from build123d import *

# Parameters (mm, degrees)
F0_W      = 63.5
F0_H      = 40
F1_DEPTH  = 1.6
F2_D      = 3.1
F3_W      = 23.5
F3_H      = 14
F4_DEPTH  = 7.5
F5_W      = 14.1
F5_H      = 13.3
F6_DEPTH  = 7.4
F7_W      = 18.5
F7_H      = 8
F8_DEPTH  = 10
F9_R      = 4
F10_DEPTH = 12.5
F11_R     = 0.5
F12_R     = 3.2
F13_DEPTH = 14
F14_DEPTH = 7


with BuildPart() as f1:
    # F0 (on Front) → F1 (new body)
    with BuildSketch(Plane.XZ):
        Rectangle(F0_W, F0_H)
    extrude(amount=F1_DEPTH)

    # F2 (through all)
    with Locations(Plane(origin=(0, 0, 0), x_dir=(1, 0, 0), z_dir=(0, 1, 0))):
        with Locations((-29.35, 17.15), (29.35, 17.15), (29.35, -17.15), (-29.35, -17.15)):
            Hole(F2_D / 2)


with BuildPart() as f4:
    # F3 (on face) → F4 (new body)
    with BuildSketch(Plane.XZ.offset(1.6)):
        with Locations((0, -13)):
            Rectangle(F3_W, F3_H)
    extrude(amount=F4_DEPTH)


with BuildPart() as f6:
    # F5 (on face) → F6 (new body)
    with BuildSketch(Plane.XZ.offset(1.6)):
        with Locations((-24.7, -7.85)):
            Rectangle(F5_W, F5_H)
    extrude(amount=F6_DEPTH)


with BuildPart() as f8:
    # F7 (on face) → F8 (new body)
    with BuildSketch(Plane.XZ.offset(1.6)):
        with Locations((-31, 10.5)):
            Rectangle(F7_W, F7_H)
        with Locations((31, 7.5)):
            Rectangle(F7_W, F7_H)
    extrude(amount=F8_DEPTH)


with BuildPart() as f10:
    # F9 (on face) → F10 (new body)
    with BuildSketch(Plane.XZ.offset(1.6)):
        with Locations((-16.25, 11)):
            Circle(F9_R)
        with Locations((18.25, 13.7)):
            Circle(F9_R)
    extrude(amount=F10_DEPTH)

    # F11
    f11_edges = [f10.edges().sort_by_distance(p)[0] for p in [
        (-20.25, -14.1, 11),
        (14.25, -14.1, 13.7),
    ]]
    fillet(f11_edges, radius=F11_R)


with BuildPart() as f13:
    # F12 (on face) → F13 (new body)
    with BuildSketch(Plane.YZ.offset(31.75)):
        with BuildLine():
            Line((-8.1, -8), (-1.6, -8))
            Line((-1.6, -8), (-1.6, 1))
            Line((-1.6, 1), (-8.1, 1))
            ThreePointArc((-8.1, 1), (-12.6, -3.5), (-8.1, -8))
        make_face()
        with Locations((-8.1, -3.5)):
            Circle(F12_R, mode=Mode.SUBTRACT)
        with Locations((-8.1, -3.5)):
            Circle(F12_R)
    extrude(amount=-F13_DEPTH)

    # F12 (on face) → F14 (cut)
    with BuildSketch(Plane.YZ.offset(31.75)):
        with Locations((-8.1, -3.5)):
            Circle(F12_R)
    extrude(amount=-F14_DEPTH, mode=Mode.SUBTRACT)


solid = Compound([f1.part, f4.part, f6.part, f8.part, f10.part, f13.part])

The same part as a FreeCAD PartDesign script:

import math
import FreeCAD as App
import Part
import Sketcher
from FreeCAD import Vector


def edges_at(feature, points):
    """Names of the edges that pass closest to the given points."""
    edges = feature.Shape.Edges
    near = lambda p: min(range(len(edges)), key=lambda i: edges[i].distToShape(Part.Vertex(*p))[0])
    return sorted({f"Edge{near(p) + 1}" for p in points})


def add_polygon(sketch, points):
    """Adds a closed chain of lines whose ends are joined by coincident constraints."""
    first, n = sketch.GeometryCount, len(points)
    for a, b in zip(points, points[1:] + points[:1]):
        sketch.addGeometry(Part.LineSegment(App.Vector(*a, 0), App.Vector(*b, 0)), False)
    for i in range(n):
        sketch.addConstraint(Sketcher.Constraint("Coincident", first + i, 2, first + (i + 1) % n, 1))

doc = App.newDocument("Part")
body = doc.addObject("PartDesign::Body", "Body")

# Sketch on XZ plane
sketch1 = doc.addObject("Sketcher::SketchObject", "Sketch")
body.addObject(sketch1)
sketch1.AttachmentSupport = (doc.XZ_Plane, [""])
sketch1.MapMode = "FlatFace"
add_polygon(sketch1, [(-32, 20), (-32, -20), (32, -20), (32, 20)])  # lines 0-3
sketch1.addConstraint([
    Sketcher.Constraint("Vertical", 0),
    Sketcher.Constraint("Horizontal", 1),
    Sketcher.Constraint("Vertical", 2),
    Sketcher.Constraint("Horizontal", 3),
    Sketcher.Constraint("Symmetric", 0, 2, 2, 2, -1, 1),
    Sketcher.Constraint("DistanceY", 0, 2, 0, 1, 40.0),
    Sketcher.Constraint("DistanceX", 1, 1, 1, 2, 63.5),
])
pad1 = doc.addObject("PartDesign::Pad", "Pad")
body.addObject(pad1)
pad1.Profile = sketch1
pad1.Length = 1.6

# Sketch on XZ plane
sketch2 = doc.addObject("Sketcher::SketchObject", "Sketch001")
body.addObject(sketch2)
sketch2.AttachmentSupport = (doc.XZ_Plane, [""])
sketch2.MapMode = "FlatFace"
sketch2.addGeometry([
    Part.Circle(Vector(-29.4, -17.1, 0), Vector(0, 0, 1), 1.6),
    Part.Circle(Vector(29.4, -17.1, 0), Vector(0, 0, 1), 1.6),
    Part.Circle(Vector(29.4, 17.1, 0), Vector(0, 0, 1), 1.6),
    Part.Circle(Vector(-29.4, 17.1, 0), Vector(0, 0, 1), 1.6),
], False)
sketch2.addConstraint([
    Sketcher.Constraint("Equal", 0, 1),
    Sketcher.Constraint("Equal", 1, 2),
    Sketcher.Constraint("Equal", 2, 3),
    Sketcher.Constraint("Symmetric", 0, 3, 2, 3, -1, 1),
    Sketcher.Constraint("Symmetric", 1, 3, 3, 3, -1, 1),
    Sketcher.Constraint("Symmetric", 0, 3, 1, 3, -2),
    Sketcher.Constraint("Diameter", 0, 3.1),
    Sketcher.Constraint("DistanceX", 0, 3, 1, 3, 58.7),
    Sketcher.Constraint("DistanceY", 1, 3, 2, 3, 34.3),
])
doc.recompute()
hole = doc.addObject("PartDesign::Hole", "Hole")
body.addObject(hole)
hole.Profile = sketch2
hole.ThreadType = "None"
hole.Diameter = 3.1
hole.DepthType = "ThroughAll"
hole.Reversed = True
body2 = doc.addObject("PartDesign::Body", "Body001")

# Sketch on XZ plane
sketch3 = doc.addObject("Sketcher::SketchObject", "Sketch002")
body2.addObject(sketch3)
sketch3.AttachmentSupport = (doc.getObject("XZ_Plane001"), [""])
sketch3.MapMode = "FlatFace"
sketch3.AttachmentOffset = App.Placement(Vector(0, 0, 1.6), App.Rotation())
add_polygon(sketch3, [(-12, -6), (-12, -20), (12, -20), (12, -6)])  # lines 0-3
sketch3.addConstraint([
    Sketcher.Constraint("Vertical", 0),
    Sketcher.Constraint("Horizontal", 1),
    Sketcher.Constraint("Vertical", 2),
    Sketcher.Constraint("Horizontal", 3),
    Sketcher.Constraint("DistanceY", 0, 2, 0, 1, 14.0),
    Sketcher.Constraint("DistanceX", 1, 1, 1, 2, 23.5),
    Sketcher.Constraint("DistanceY", 0, 2, -1, 1, 20.0),
    Sketcher.Constraint("DistanceX", 0, 2, -1, 1, 11.75),
])
pad2 = doc.addObject("PartDesign::Pad", "Pad001")
body2.addObject(pad2)
pad2.Profile = sketch3
pad2.Length = 7.5
body3 = doc.addObject("PartDesign::Body", "Body002")

# Sketch on XZ plane
sketch4 = doc.addObject("Sketcher::SketchObject", "Sketch003")
body3.addObject(sketch4)
sketch4.AttachmentSupport = (doc.getObject("XZ_Plane002"), [""])
sketch4.MapMode = "FlatFace"
sketch4.AttachmentOffset = App.Placement(Vector(0, 0, 1.6), App.Rotation())
add_polygon(sketch4, [(-32, -1), (-32, -14), (-18, -14), (-18, -1)])  # lines 0-3
sketch4.addConstraint([
    Sketcher.Constraint("Vertical", 0),
    Sketcher.Constraint("Horizontal", 1),
    Sketcher.Constraint("Vertical", 2),
    Sketcher.Constraint("Horizontal", 3),
    Sketcher.Constraint("DistanceX", 1, 1, 1, 2, 14.1),
    Sketcher.Constraint("DistanceY", 0, 2, 0, 1, 13.3),
    Sketcher.Constraint("DistanceY", 0, 2, -1, 1, 14.5),
    Sketcher.Constraint("DistanceX", 0, 2, -1, 1, 31.75),
])
pad3 = doc.addObject("PartDesign::Pad", "Pad002")
body3.addObject(pad3)
pad3.Profile = sketch4
pad3.Length = 7.4
body4 = doc.addObject("PartDesign::Body", "Body003")
body4.AllowCompound = True

# Sketch on XZ plane
sketch5 = doc.addObject("Sketcher::SketchObject", "Sketch004")
body4.addObject(sketch5)
sketch5.AttachmentSupport = (doc.getObject("XZ_Plane003"), [""])
sketch5.MapMode = "FlatFace"
sketch5.AttachmentOffset = App.Placement(Vector(0, 0, 1.6), App.Rotation())
add_polygon(sketch5, [(-40, 14), (-40, 6), (-22, 6), (-22, 14)])  # lines 0-3
add_polygon(sketch5, [(22, 12), (22, 4), (40, 4), (40, 12)])  # lines 4-7
sketch5.addConstraint([
    Sketcher.Constraint("Vertical", 0),
    Sketcher.Constraint("Horizontal", 1),
    Sketcher.Constraint("Vertical", 2),
    Sketcher.Constraint("Horizontal", 3),
    Sketcher.Constraint("Vertical", 4),
    Sketcher.Constraint("Horizontal", 5),
    Sketcher.Constraint("Vertical", 6),
    Sketcher.Constraint("Horizontal", 7),
    Sketcher.Constraint("Equal", 3, 5),
    Sketcher.Constraint("Equal", 2, 4),
    Sketcher.Constraint("DistanceY", 0, 2, 0, 1, 8.0),
    Sketcher.Constraint("DistanceX", 1, 1, 1, 2, 18.5),
    Sketcher.Constraint("DistanceY", 4, 2, 1, 2, 3.0),
    Sketcher.Constraint("DistanceX", 0, 2, 4, 2, 62.0),
    Sketcher.Constraint("DistanceY", -1, 1, 0, 2, 6.5),
    Sketcher.Constraint("DistanceX", 0, 2, -1, 1, 40.25),
])
pad4 = doc.addObject("PartDesign::Pad", "Pad003")
body4.addObject(pad4)
pad4.Profile = sketch5
pad4.Length = 10
body5 = doc.addObject("PartDesign::Body", "Body004")
body5.AllowCompound = True

# Sketch on XZ plane
sketch6 = doc.addObject("Sketcher::SketchObject", "Sketch005")
body5.addObject(sketch6)
sketch6.AttachmentSupport = (doc.getObject("XZ_Plane004"), [""])
sketch6.MapMode = "FlatFace"
sketch6.AttachmentOffset = App.Placement(Vector(0, 0, 1.6), App.Rotation())
sketch6.addGeometry([
    Part.Circle(Vector(-16.2, 11, 0), Vector(0, 0, 1), 4),
    Part.Circle(Vector(18.2, 13.7, 0), Vector(0, 0, 1), 4),
], False)
sketch6.addConstraint([
    Sketcher.Constraint("Equal", 0, 1),
    Sketcher.Constraint("Diameter", 0, 8.0),
    Sketcher.Constraint("DistanceY", -1, 1, 0, 3, 11.0),
    Sketcher.Constraint("DistanceY", -1, 1, 1, 3, 13.7),
    Sketcher.Constraint("DistanceX", 0, 3, 1, 3, 34.5),
    Sketcher.Constraint("DistanceX", 0, 3, -1, 1, 16.25),
])
pad5 = doc.addObject("PartDesign::Pad", "Pad004")
body5.addObject(pad5)
pad5.Profile = sketch6
pad5.Length = 12.5
doc.recompute()

fillet = doc.addObject("PartDesign::Fillet", "Fillet")
body5.addObject(fillet)
fillet.Base = (pad5, edges_at(pad5, [(-20.25, -14.1, 11), (14.25, -14.1, 13.7)]))
fillet.Radius = 0.5
body6 = doc.addObject("PartDesign::Body", "Body005")

# Sketch on YZ plane
sketch7 = doc.addObject("Sketcher::SketchObject", "Sketch006")
body6.addObject(sketch7)
sketch7.AttachmentSupport = (doc.getObject("YZ_Plane005"), [""])
sketch7.MapMode = "FlatFace"
sketch7.AttachmentOffset = App.Placement(Vector(0, 0, 31.75), App.Rotation())
sketch7.addGeometry([
    Part.LineSegment(Vector(-8.1, -8, 0), Vector(-1.6, -8, 0)),
    Part.LineSegment(Vector(-1.6, -8, 0), Vector(-1.6, 1, 0)),
    Part.LineSegment(Vector(-1.6, 1, 0), Vector(-8.1, 1, 0)),
    Part.ArcOfCircle(Part.Circle(Vector(-8.1, -3.5, 0), Vector(0, 0, 1), 4.5), math.radians(90), math.radians(270)),
], False)
sketch7.addConstraint([
    Sketcher.Constraint("Coincident", 0, 2, 1, 1),
    Sketcher.Constraint("Coincident", 1, 2, 2, 1),
    Sketcher.Constraint("Tangent", 2, 2, 3, 1),
    Sketcher.Constraint("Tangent", 3, 2, 0, 1),
    Sketcher.Constraint("Horizontal", 0),
    Sketcher.Constraint("Vertical", 1),
    Sketcher.Constraint("Horizontal", 2),
    Sketcher.Constraint("Radius", 3, 4.5),
    Sketcher.Constraint("DistanceX", 0, 1, 0, 2, 6.5),
    Sketcher.Constraint("DistanceY", 0, 2, -1, 1, 8.0),
    Sketcher.Constraint("DistanceX", 3, 3, -1, 1, 8.1),
])
pad6 = doc.addObject("PartDesign::Pad", "Pad005")
body6.addObject(pad6)
pad6.Profile = sketch7
pad6.Length = 14
pad6.Reversed = True

# Sketch on YZ plane
sketch8 = doc.addObject("Sketcher::SketchObject", "Sketch007")
body6.addObject(sketch8)
sketch8.AttachmentSupport = (doc.getObject("YZ_Plane005"), [""])
sketch8.MapMode = "FlatFace"
sketch8.AttachmentOffset = App.Placement(Vector(0, 0, 31.75), App.Rotation())
sketch8.addGeometry(Part.Circle(Vector(-8.1, -3.5, 0), Vector(0, 0, 1), 3.2), False)
sketch8.addConstraint([
    Sketcher.Constraint("Diameter", 0, 6.4),
    Sketcher.Constraint("DistanceX", 0, 3, -1, 1, 8.1),
    Sketcher.Constraint("DistanceY", 0, 3, -1, 1, 3.5),
])
pocket1 = doc.addObject("PartDesign::Pocket", "Pocket")
body6.addObject(pocket1)
pocket1.Profile = sketch8
pocket1.Length = 7

doc.recompute()
